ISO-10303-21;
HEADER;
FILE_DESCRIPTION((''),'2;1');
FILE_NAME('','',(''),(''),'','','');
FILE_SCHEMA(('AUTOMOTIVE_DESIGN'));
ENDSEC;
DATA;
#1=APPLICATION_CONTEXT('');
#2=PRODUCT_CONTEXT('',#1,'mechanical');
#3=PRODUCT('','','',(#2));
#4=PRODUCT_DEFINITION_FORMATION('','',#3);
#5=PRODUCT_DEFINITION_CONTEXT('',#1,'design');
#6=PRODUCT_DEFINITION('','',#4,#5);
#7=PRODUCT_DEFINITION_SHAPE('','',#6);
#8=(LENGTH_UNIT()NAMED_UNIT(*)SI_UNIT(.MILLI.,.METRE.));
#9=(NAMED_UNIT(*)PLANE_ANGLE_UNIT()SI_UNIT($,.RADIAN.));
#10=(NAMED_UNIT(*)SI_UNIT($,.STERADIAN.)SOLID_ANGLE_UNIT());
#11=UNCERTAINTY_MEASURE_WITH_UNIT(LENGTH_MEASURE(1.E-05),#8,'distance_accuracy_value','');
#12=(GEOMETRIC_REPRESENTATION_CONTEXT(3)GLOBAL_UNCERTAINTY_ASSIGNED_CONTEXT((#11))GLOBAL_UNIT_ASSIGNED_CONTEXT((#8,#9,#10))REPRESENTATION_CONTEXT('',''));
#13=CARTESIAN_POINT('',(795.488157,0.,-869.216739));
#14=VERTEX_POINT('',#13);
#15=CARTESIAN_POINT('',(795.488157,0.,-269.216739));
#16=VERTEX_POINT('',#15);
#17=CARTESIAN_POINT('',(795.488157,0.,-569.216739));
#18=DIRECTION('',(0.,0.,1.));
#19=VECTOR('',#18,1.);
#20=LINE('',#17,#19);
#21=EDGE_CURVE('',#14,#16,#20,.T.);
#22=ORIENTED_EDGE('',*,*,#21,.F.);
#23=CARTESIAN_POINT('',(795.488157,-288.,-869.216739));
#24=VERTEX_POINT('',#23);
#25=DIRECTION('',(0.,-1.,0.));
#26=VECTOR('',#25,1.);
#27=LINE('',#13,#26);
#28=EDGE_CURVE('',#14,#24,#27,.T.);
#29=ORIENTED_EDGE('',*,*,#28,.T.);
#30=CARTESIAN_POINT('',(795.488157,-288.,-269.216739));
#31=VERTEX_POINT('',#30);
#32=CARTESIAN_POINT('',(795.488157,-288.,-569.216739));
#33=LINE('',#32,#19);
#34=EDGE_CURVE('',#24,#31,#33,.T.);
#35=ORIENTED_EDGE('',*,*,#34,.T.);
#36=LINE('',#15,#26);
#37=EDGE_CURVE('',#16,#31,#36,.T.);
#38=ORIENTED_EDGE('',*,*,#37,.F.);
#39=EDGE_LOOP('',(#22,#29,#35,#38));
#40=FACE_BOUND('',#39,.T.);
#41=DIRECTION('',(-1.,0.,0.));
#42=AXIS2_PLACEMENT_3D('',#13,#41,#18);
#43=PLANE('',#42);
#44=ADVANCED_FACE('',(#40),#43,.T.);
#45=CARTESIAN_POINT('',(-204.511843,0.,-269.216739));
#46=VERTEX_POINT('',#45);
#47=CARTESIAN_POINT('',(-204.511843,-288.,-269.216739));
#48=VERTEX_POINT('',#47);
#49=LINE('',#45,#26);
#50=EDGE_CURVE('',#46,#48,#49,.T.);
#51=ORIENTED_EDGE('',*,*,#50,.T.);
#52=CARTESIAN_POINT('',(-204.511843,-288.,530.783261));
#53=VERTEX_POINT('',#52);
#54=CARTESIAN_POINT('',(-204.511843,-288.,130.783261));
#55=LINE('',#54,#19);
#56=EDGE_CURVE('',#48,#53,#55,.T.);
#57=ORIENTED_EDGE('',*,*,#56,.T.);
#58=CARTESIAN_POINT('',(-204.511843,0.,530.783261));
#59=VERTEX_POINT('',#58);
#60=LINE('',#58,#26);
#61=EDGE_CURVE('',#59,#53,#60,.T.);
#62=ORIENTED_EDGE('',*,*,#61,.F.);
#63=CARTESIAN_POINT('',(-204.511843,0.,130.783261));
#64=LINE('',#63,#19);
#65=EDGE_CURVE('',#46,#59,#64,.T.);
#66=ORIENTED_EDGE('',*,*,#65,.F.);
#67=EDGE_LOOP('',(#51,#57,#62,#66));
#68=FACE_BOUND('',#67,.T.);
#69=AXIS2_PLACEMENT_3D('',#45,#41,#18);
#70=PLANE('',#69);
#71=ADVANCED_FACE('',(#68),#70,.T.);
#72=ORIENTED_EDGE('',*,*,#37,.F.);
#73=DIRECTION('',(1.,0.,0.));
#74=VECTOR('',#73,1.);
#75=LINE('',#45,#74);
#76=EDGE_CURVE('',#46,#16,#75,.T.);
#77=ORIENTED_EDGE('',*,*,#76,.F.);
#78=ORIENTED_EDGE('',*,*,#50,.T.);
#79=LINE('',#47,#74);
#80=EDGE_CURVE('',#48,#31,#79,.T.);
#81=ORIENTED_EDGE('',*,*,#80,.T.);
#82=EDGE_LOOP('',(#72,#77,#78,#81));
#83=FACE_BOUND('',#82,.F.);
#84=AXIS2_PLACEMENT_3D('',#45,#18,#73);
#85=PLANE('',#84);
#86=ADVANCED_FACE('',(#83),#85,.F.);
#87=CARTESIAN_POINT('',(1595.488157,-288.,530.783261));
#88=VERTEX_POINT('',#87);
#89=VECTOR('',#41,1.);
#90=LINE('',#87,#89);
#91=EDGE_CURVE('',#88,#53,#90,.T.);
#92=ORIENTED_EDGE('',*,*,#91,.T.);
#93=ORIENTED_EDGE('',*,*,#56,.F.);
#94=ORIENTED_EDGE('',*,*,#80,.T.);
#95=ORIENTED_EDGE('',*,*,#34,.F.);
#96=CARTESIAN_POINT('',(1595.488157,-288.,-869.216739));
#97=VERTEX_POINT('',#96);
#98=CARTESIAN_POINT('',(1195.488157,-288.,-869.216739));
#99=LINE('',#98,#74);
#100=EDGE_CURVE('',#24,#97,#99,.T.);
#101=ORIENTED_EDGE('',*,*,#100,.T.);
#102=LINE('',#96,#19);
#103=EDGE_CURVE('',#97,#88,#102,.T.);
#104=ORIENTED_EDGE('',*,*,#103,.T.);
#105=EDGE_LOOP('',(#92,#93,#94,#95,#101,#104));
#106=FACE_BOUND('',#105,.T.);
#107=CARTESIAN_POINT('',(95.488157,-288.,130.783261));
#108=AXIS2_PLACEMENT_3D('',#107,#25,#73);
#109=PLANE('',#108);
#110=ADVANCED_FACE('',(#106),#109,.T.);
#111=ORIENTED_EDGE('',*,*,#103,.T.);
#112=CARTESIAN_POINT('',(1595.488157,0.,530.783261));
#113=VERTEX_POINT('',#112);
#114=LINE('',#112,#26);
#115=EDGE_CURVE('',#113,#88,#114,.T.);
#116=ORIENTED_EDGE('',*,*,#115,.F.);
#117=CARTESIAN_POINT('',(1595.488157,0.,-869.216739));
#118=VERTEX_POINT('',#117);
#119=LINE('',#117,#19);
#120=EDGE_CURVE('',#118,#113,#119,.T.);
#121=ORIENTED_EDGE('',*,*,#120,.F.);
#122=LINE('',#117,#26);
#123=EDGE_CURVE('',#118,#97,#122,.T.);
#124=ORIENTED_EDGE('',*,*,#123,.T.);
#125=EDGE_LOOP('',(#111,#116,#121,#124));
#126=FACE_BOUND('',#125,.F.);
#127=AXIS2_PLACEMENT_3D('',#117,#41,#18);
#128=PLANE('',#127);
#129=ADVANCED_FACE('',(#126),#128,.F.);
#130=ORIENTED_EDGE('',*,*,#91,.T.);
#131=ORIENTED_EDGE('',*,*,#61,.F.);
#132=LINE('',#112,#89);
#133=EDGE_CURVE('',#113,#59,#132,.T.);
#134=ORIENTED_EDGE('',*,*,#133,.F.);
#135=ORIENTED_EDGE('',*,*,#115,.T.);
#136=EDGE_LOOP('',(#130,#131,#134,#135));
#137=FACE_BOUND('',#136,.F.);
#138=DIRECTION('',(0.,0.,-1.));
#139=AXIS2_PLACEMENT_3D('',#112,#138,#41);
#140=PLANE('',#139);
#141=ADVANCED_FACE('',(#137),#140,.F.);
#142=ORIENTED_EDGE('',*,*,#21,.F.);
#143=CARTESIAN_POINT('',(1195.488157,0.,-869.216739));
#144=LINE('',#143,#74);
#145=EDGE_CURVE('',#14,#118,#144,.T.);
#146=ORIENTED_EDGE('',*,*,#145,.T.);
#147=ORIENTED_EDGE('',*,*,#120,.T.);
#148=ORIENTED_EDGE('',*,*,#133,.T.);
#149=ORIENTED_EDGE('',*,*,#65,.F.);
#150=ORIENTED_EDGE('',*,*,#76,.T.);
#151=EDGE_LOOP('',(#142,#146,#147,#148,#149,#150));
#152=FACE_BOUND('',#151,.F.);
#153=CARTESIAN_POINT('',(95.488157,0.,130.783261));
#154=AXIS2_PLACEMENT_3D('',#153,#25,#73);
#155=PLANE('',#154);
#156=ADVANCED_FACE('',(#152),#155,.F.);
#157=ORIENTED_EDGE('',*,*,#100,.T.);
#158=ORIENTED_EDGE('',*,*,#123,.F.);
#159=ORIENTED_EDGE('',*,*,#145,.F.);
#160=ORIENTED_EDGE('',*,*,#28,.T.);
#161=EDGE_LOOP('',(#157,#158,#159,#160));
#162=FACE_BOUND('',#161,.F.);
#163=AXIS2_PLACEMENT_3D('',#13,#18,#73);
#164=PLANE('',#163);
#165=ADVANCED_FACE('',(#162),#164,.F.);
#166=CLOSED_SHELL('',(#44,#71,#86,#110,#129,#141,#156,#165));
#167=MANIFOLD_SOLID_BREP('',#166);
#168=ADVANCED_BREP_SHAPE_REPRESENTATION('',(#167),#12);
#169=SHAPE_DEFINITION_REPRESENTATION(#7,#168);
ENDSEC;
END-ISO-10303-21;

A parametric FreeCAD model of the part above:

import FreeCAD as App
import Part
import Sketcher
Q = App.Units.Quantity

doc = App.newDocument("Part")
params = doc.addObject("Spreadsheet::Sheet", "Params")
for row, (alias, value) in enumerate([
    ("sketch1_width", "1000 mm"),
    ("sketch1_width2", "800 mm"),
    ("sketch1_height", "600 mm"),
    ("pad1_length", "288 mm"),
], start=1):
    params.set(f"A{row}", alias)
    params.set(f"B{row}", "=" + value)
    params.setAlias(f"B{row}", alias)

body = doc.addObject("PartDesign::Body", "Body")

sketch1 = body.newObject("Sketcher::SketchObject", "Sketch")
sketch1.AttachmentSupport = (doc.getObject("XZ_Plane"), [""])
sketch1.MapMode = "FlatFace"
sketch1.addGeometry(Part.LineSegment(App.Vector(-204.511843, 530.783261, 0), App.Vector(-204.511843, -269.216739, 0)), False)
sketch1.addGeometry(Part.LineSegment(App.Vector(-204.511843, -269.216739, 0), App.Vector(795.488157, -269.216739, 0)), False)
sketch1.addGeometry(Part.LineSegment(App.Vector(795.488157, -269.216739, 0), App.Vector(795.488157, -869.216739, 0)), False)
sketch1.addGeometry(Part.LineSegment(App.Vector(795.488157, -869.216739, 0), App.Vector(1595.488157, -869.216739, 0)), False)
sketch1.addGeometry(Part.LineSegment(App.Vector(1595.488157, -869.216739, 0), App.Vector(1595.488157, 530.783261, 0)), False)
sketch1.addGeometry(Part.LineSegment(App.Vector(1595.488157, 530.783261, 0), App.Vector(-204.511843, 530.783261, 0)), False)
sketch1.addConstraint(Sketcher.Constraint("Coincident", 0, 2, 1, 1))
sketch1.addConstraint(Sketcher.Constraint("Coincident", 1, 2, 2, 1))
sketch1.addConstraint(Sketcher.Constraint("Coincident", 2, 2, 3, 1))
sketch1.addConstraint(Sketcher.Constraint("Coincident", 3, 2, 4, 1))
sketch1.addConstraint(Sketcher.Constraint("Coincident", 4, 2, 5, 1))
sketch1.addConstraint(Sketcher.Constraint("Coincident", 5, 2, 0, 1))
sketch1.addConstraint(Sketcher.Constraint("Vertical", 0))
sketch1.addConstraint(Sketcher.Constraint("Horizontal", 1))
sketch1.addConstraint(Sketcher.Constraint("Vertical", 2))
sketch1.addConstraint(Sketcher.Constraint("Horizontal", 3))
sketch1.addConstraint(Sketcher.Constraint("Vertical", 4))
sketch1.addConstraint(Sketcher.Constraint("Horizontal", 5))
sketch1.addConstraint(Sketcher.Constraint("Equal", 3, 0))
sketch1.addConstraint(Sketcher.Constraint("DistanceX", 1, 1, 1, 2, Q("1000 mm")))
sketch1.addConstraint(Sketcher.Constraint("DistanceX", 3, 1, 3, 2, Q("800 mm")))
sketch1.addConstraint(Sketcher.Constraint("DistanceY", 2, 2, 2, 1, Q("600 mm")))
sketch1.addConstraint(Sketcher.Constraint("DistanceY", 0, 2, -1, 1, Q("269.216739 mm")))
sketch1.addConstraint(Sketcher.Constraint("DistanceX", 0, 2, -1, 1, Q("204.511843 mm")))
sketch1.setExpression("Constraints[13]", "Params.sketch1_width")
sketch1.setExpression("Constraints[14]", "Params.sketch1_width2")
sketch1.setExpression("Constraints[15]", "Params.sketch1_height")
pad1 = body.newObject("PartDesign::Pad", "Pad")
pad1.Profile = sketch1
pad1.setExpression("Length", "Params.pad1_length")

doc.recompute()
